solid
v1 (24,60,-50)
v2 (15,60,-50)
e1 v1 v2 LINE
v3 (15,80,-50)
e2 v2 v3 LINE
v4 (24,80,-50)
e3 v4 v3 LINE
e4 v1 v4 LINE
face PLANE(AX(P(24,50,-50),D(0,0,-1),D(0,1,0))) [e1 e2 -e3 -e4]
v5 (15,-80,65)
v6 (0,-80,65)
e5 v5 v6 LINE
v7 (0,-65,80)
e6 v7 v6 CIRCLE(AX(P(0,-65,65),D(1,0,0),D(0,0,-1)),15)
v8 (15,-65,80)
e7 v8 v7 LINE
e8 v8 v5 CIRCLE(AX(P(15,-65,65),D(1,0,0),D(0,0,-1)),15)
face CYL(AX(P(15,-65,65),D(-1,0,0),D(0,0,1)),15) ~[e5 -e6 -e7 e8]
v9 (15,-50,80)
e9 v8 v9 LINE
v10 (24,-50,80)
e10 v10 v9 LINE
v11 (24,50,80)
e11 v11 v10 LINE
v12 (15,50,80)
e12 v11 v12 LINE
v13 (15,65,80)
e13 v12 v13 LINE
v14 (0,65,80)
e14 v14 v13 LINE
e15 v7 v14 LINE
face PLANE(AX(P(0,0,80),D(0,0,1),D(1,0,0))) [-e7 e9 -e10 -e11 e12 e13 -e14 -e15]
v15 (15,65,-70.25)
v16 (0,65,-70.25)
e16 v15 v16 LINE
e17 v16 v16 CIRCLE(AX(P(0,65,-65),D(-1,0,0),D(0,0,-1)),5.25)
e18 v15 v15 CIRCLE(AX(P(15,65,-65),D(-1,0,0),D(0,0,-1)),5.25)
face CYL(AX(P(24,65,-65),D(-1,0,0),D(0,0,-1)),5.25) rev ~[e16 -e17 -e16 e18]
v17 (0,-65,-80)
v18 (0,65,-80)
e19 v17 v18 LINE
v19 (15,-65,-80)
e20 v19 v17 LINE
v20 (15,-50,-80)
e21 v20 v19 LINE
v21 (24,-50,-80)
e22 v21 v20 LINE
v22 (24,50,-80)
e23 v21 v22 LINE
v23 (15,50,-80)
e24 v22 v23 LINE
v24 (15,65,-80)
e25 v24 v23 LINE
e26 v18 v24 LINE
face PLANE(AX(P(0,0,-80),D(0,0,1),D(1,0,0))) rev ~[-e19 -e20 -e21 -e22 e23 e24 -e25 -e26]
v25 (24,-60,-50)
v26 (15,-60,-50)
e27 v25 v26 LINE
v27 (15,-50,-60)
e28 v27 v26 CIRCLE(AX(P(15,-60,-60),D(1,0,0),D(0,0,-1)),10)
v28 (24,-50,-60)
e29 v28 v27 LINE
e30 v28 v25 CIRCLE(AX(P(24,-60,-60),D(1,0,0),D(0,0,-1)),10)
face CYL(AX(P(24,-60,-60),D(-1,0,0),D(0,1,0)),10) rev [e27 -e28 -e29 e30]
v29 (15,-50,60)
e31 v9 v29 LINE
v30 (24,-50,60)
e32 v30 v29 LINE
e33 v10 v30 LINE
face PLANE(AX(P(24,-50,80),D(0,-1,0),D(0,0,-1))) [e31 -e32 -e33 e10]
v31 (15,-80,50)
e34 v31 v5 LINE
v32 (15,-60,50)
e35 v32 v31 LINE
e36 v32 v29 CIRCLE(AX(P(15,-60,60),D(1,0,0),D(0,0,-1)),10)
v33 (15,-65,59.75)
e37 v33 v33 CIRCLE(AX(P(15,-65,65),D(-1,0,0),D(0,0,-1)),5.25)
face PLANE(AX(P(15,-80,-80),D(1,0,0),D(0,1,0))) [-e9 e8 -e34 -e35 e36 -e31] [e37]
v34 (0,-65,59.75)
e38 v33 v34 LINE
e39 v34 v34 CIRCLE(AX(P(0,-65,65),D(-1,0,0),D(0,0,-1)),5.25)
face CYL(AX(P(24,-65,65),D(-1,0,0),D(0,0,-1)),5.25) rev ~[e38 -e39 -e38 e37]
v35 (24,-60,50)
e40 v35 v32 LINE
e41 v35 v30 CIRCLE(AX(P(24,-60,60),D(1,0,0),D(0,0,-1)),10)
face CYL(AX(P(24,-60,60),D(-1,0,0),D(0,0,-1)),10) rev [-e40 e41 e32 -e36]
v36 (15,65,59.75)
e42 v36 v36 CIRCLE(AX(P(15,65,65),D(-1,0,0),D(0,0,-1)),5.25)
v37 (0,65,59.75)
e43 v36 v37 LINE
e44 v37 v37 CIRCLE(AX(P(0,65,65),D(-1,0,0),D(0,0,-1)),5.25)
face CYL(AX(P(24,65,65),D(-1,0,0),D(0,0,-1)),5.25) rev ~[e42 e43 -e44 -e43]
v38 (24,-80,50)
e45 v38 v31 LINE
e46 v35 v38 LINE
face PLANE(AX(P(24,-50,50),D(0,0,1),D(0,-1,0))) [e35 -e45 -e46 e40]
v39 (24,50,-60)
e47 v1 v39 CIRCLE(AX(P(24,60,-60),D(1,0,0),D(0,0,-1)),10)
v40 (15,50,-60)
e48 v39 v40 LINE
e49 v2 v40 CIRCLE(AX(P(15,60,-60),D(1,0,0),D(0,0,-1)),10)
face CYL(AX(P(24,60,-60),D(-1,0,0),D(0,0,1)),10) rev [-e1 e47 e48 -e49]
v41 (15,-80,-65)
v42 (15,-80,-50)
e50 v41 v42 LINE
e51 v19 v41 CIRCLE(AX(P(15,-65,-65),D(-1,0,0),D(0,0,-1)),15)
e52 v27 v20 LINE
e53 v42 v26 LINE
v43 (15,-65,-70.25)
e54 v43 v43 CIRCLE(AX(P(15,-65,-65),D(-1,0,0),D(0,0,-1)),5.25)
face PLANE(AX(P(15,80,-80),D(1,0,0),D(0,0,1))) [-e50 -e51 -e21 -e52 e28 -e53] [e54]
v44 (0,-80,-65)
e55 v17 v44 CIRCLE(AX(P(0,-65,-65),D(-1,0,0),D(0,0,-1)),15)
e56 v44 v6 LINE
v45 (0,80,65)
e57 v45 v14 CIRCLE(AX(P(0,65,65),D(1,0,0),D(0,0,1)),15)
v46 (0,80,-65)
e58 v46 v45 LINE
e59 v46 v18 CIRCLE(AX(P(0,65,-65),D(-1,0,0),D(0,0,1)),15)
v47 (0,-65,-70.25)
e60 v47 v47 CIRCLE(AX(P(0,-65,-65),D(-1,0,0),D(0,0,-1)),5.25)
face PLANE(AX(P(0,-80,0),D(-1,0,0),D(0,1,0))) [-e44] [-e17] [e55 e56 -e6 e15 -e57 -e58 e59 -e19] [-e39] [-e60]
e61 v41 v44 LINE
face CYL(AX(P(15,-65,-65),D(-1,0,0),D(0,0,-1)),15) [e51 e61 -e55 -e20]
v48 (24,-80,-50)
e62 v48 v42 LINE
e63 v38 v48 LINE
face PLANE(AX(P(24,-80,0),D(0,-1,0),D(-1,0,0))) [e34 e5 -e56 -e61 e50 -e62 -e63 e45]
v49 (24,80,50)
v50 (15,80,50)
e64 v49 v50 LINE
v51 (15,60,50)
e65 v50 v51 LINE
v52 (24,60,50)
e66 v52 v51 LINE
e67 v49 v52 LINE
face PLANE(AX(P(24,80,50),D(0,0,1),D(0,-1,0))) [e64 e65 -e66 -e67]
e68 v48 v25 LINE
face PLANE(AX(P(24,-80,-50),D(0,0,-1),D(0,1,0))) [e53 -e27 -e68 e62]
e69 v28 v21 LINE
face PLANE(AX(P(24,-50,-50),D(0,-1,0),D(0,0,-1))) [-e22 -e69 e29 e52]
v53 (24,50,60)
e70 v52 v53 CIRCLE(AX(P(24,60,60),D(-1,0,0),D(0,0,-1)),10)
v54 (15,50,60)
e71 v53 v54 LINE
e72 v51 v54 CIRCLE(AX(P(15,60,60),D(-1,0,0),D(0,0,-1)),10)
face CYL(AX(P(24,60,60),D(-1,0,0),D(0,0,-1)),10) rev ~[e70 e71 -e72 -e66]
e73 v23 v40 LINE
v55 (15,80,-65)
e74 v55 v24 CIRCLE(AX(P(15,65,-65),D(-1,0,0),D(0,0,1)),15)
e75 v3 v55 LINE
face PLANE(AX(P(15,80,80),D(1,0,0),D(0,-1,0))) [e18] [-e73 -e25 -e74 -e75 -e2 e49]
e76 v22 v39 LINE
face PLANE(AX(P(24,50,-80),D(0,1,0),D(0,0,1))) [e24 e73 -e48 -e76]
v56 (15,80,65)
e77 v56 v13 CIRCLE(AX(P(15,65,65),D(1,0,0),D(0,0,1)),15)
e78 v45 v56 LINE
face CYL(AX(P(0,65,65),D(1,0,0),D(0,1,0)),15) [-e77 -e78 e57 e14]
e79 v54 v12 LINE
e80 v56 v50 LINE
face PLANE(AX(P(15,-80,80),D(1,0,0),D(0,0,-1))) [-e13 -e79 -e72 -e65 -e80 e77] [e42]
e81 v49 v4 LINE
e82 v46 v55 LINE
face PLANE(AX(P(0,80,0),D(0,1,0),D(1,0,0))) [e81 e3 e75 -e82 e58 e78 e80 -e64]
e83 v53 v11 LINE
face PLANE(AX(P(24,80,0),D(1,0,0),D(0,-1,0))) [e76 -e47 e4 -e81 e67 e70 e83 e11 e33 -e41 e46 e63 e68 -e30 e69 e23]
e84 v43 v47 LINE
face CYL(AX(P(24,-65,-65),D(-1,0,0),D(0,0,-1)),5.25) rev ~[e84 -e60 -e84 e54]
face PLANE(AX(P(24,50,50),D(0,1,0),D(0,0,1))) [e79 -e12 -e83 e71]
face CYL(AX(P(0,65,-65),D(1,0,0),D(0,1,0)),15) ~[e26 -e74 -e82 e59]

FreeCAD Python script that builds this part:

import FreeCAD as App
import Part
import Sketcher
from FreeCAD import Vector
Q = App.Units.Quantity


def edges_at(feature, points):
    """Names of the edges that pass closest to the given points."""
    edges = feature.Shape.Edges
    near = lambda p: min(range(len(edges)), key=lambda i: edges[i].distToShape(Part.Vertex(*p))[0])
    return sorted({f"Edge{near(p) + 1}" for p in points})


def add_polygon(sketch, points):
    """Adds a closed chain of lines whose ends are joined by coincident constraints."""
    first, n = sketch.GeometryCount, len(points)
    for a, b in zip(points, points[1:] + points[:1]):
        sketch.addGeometry(Part.LineSegment(App.Vector(*a, 0), App.Vector(*b, 0)), False)
    for i in range(n):
        sketch.addConstraint(Sketcher.Constraint("Coincident", first + i, 2, first + (i + 1) % n, 1))

doc = App.newDocument("Part")
params = doc.addObject("Spreadsheet::Sheet", "Params")
for row, (alias, value) in enumerate([
    ("sketch1_width", "24 mm"),
    ("sketch1_height", "160 mm"),
    ("pad1_length", "160 mm"),
    ("sketch2_width", "30 mm"),
    ("pocket1_length", "9 mm"),
    ("sketch3_diameter", "10.5 mm"),
    ("hole_diameter", "10.5 mm"),
    ("fillet_radius", "15 mm"),
    ("fillet2_radius", "10 mm"),
], start=1):
    params.set(f"A{row}", alias)
    params.set(f"B{row}", "=" + value)
    params.setAlias(f"B{row}", alias)

body = doc.addObject("PartDesign::Body", "Body")

sketch1 = body.newObject("Sketcher::SketchObject", "Sketch")
sketch1.AttachmentSupport = (doc.getObject("XY_Plane"), [""])
sketch1.MapMode = "FlatFace"
add_polygon(sketch1, [(24, 80), (0, 80), (0, -80), (24, -80)])
sketch1.addConstraint([
    Sketcher.Constraint("Horizontal", 0),
    Sketcher.Constraint("Vertical", 1),
    Sketcher.Constraint("Horizontal", 2),
    Sketcher.Constraint("Vertical", 3),
    Sketcher.Constraint("Symmetric", 0, 2, 1, 2, -1, 1),
    Sketcher.Constraint("DistanceX", 0, 2, 0, 1, Q("24 mm")),
    Sketcher.Constraint("DistanceY", 1, 2, 1, 1, Q("160 mm")),
])
sketch1.setExpression("Constraints[9]", "Params.sketch1_width")
sketch1.setExpression("Constraints[10]", "Params.sketch1_height")
pad1 = body.newObject("PartDesign::Pad", "Pad")
pad1.Profile = sketch1
pad1.setExpression("Length", "Params.pad1_length")
pad1.Midplane = True

sketch2 = body.newObject("Sketcher::SketchObject", "Sketch001")
sketch2.AttachmentSupport = (doc.getObject("YZ_Plane"), [""])
sketch2.MapMode = "FlatFace"
sketch2.AttachmentOffset = App.Placement(Vector(0, 0, 24), App.Rotation())
add_polygon(sketch2, [(80, 50), (80, 80), (50, 80), (50, 50)])
sketch2.addConstraint([
    Sketcher.Constraint("Vertical", 0),
    Sketcher.Constraint("Horizontal", 1),
    Sketcher.Constraint("Vertical", 2),
    Sketcher.Constraint("Horizontal", 3),
    Sketcher.Constraint("Equal", 3, 0),
    Sketcher.Constraint("DistanceX", 1, 2, 1, 1, Q("30 mm")),
    Sketcher.Constraint("DistanceX", -1, 1, 0, 2, Q("80 mm")),
    Sketcher.Constraint("DistanceY", -1, 1, 0, 2, Q("80 mm")),
])
sketch2.setExpression("Constraints[9]", "Params.sketch2_width")
pocket1 = body.newObject("PartDesign::Pocket", "Pocket")
pocket1.Profile = sketch2
pocket1.setExpression("Length", "Params.pocket1_length")
doc.recompute()

polarpattern = body.newObject("PartDesign::PolarPattern", "PolarPattern")
polarpattern.Originals = [pocket1]
polarpattern.Axis = (doc.getObject("X_Axis"), [""])
polarpattern.Angle = 360
polarpattern.Occurrences = 4
body.Tip = polarpattern

sketch3 = body.newObject("Sketcher::SketchObject", "Sketch002")
sketch3.AttachmentSupport = (doc.getObject("YZ_Plane"), [""])
sketch3.MapMode = "FlatFace"
sketch3.AttachmentOffset = App.Placement(Vector(0, 0, 24), App.Rotation())
sketch3.addGeometry([
    Part.Circle(Vector(65, 65, 0), Vector(0, 0, 1), 5.25),
    Part.Circle(Vector(-65, 65, 0), Vector(0, 0, 1), 5.25),
    Part.Circle(Vector(65, -65, 0), Vector(0, 0, 1), 5.25),
    Part.Circle(Vector(-65, -65, 0), Vector(0, 0, 1), 5.25),
], False)
sketch3.addConstraint([
    Sketcher.Constraint("Equal", 0, 1),
    Sketcher.Constraint("Equal", 1, 2),
    Sketcher.Constraint("Equal", 2, 3),
    Sketcher.Constraint("Symmetric", 1, 3, 2, 3, -1, 1),
    Sketcher.Constraint("Symmetric", 0, 3, 3, 3, -1, 1),
    Sketcher.Constraint("Symmetric", 0, 3, 1, 3, -2),
    Sketcher.Constraint("Diameter", 0, Q("10.5 mm")),
    Sketcher.Constraint("DistanceX", -1, 1, 0, 3, Q("65 mm")),
    Sketcher.Constraint("DistanceY", -1, 1, 0, 3, Q("65 mm")),
])
sketch3.setExpression("Constraints[6]", "Params.sketch3_diameter")
doc.recompute()
hole = body.newObject("PartDesign::Hole", "Hole")
hole.Profile = sketch3
hole.ThreadType = "None"
hole.setExpression("Diameter", "Params.hole_diameter")
hole.DepthType = "ThroughAll"
doc.recompute()

fillet = body.newObject("PartDesign::Fillet", "Fillet")
fillet.Base = (hole, edges_at(hole, [
    (7.5, 80, -80),
    (7.5, -80, -80),
    (7.5, -80, 80),
    (7.5, 80, 80),
]))
fillet.setExpression("Radius", "Params.fillet_radius")
doc.recompute()

fillet2 = body.newObject("PartDesign::Fillet", "Fillet001")
fillet2.Base = (fillet, edges_at(fillet, [
    (19.5, -50, 50),
    (19.5, -50, -50),
    (19.5, 50, -50),
    (19.5, 50, 50),
]))
fillet2.setExpression("Radius", "Params.fillet2_radius")

doc.recompute()
